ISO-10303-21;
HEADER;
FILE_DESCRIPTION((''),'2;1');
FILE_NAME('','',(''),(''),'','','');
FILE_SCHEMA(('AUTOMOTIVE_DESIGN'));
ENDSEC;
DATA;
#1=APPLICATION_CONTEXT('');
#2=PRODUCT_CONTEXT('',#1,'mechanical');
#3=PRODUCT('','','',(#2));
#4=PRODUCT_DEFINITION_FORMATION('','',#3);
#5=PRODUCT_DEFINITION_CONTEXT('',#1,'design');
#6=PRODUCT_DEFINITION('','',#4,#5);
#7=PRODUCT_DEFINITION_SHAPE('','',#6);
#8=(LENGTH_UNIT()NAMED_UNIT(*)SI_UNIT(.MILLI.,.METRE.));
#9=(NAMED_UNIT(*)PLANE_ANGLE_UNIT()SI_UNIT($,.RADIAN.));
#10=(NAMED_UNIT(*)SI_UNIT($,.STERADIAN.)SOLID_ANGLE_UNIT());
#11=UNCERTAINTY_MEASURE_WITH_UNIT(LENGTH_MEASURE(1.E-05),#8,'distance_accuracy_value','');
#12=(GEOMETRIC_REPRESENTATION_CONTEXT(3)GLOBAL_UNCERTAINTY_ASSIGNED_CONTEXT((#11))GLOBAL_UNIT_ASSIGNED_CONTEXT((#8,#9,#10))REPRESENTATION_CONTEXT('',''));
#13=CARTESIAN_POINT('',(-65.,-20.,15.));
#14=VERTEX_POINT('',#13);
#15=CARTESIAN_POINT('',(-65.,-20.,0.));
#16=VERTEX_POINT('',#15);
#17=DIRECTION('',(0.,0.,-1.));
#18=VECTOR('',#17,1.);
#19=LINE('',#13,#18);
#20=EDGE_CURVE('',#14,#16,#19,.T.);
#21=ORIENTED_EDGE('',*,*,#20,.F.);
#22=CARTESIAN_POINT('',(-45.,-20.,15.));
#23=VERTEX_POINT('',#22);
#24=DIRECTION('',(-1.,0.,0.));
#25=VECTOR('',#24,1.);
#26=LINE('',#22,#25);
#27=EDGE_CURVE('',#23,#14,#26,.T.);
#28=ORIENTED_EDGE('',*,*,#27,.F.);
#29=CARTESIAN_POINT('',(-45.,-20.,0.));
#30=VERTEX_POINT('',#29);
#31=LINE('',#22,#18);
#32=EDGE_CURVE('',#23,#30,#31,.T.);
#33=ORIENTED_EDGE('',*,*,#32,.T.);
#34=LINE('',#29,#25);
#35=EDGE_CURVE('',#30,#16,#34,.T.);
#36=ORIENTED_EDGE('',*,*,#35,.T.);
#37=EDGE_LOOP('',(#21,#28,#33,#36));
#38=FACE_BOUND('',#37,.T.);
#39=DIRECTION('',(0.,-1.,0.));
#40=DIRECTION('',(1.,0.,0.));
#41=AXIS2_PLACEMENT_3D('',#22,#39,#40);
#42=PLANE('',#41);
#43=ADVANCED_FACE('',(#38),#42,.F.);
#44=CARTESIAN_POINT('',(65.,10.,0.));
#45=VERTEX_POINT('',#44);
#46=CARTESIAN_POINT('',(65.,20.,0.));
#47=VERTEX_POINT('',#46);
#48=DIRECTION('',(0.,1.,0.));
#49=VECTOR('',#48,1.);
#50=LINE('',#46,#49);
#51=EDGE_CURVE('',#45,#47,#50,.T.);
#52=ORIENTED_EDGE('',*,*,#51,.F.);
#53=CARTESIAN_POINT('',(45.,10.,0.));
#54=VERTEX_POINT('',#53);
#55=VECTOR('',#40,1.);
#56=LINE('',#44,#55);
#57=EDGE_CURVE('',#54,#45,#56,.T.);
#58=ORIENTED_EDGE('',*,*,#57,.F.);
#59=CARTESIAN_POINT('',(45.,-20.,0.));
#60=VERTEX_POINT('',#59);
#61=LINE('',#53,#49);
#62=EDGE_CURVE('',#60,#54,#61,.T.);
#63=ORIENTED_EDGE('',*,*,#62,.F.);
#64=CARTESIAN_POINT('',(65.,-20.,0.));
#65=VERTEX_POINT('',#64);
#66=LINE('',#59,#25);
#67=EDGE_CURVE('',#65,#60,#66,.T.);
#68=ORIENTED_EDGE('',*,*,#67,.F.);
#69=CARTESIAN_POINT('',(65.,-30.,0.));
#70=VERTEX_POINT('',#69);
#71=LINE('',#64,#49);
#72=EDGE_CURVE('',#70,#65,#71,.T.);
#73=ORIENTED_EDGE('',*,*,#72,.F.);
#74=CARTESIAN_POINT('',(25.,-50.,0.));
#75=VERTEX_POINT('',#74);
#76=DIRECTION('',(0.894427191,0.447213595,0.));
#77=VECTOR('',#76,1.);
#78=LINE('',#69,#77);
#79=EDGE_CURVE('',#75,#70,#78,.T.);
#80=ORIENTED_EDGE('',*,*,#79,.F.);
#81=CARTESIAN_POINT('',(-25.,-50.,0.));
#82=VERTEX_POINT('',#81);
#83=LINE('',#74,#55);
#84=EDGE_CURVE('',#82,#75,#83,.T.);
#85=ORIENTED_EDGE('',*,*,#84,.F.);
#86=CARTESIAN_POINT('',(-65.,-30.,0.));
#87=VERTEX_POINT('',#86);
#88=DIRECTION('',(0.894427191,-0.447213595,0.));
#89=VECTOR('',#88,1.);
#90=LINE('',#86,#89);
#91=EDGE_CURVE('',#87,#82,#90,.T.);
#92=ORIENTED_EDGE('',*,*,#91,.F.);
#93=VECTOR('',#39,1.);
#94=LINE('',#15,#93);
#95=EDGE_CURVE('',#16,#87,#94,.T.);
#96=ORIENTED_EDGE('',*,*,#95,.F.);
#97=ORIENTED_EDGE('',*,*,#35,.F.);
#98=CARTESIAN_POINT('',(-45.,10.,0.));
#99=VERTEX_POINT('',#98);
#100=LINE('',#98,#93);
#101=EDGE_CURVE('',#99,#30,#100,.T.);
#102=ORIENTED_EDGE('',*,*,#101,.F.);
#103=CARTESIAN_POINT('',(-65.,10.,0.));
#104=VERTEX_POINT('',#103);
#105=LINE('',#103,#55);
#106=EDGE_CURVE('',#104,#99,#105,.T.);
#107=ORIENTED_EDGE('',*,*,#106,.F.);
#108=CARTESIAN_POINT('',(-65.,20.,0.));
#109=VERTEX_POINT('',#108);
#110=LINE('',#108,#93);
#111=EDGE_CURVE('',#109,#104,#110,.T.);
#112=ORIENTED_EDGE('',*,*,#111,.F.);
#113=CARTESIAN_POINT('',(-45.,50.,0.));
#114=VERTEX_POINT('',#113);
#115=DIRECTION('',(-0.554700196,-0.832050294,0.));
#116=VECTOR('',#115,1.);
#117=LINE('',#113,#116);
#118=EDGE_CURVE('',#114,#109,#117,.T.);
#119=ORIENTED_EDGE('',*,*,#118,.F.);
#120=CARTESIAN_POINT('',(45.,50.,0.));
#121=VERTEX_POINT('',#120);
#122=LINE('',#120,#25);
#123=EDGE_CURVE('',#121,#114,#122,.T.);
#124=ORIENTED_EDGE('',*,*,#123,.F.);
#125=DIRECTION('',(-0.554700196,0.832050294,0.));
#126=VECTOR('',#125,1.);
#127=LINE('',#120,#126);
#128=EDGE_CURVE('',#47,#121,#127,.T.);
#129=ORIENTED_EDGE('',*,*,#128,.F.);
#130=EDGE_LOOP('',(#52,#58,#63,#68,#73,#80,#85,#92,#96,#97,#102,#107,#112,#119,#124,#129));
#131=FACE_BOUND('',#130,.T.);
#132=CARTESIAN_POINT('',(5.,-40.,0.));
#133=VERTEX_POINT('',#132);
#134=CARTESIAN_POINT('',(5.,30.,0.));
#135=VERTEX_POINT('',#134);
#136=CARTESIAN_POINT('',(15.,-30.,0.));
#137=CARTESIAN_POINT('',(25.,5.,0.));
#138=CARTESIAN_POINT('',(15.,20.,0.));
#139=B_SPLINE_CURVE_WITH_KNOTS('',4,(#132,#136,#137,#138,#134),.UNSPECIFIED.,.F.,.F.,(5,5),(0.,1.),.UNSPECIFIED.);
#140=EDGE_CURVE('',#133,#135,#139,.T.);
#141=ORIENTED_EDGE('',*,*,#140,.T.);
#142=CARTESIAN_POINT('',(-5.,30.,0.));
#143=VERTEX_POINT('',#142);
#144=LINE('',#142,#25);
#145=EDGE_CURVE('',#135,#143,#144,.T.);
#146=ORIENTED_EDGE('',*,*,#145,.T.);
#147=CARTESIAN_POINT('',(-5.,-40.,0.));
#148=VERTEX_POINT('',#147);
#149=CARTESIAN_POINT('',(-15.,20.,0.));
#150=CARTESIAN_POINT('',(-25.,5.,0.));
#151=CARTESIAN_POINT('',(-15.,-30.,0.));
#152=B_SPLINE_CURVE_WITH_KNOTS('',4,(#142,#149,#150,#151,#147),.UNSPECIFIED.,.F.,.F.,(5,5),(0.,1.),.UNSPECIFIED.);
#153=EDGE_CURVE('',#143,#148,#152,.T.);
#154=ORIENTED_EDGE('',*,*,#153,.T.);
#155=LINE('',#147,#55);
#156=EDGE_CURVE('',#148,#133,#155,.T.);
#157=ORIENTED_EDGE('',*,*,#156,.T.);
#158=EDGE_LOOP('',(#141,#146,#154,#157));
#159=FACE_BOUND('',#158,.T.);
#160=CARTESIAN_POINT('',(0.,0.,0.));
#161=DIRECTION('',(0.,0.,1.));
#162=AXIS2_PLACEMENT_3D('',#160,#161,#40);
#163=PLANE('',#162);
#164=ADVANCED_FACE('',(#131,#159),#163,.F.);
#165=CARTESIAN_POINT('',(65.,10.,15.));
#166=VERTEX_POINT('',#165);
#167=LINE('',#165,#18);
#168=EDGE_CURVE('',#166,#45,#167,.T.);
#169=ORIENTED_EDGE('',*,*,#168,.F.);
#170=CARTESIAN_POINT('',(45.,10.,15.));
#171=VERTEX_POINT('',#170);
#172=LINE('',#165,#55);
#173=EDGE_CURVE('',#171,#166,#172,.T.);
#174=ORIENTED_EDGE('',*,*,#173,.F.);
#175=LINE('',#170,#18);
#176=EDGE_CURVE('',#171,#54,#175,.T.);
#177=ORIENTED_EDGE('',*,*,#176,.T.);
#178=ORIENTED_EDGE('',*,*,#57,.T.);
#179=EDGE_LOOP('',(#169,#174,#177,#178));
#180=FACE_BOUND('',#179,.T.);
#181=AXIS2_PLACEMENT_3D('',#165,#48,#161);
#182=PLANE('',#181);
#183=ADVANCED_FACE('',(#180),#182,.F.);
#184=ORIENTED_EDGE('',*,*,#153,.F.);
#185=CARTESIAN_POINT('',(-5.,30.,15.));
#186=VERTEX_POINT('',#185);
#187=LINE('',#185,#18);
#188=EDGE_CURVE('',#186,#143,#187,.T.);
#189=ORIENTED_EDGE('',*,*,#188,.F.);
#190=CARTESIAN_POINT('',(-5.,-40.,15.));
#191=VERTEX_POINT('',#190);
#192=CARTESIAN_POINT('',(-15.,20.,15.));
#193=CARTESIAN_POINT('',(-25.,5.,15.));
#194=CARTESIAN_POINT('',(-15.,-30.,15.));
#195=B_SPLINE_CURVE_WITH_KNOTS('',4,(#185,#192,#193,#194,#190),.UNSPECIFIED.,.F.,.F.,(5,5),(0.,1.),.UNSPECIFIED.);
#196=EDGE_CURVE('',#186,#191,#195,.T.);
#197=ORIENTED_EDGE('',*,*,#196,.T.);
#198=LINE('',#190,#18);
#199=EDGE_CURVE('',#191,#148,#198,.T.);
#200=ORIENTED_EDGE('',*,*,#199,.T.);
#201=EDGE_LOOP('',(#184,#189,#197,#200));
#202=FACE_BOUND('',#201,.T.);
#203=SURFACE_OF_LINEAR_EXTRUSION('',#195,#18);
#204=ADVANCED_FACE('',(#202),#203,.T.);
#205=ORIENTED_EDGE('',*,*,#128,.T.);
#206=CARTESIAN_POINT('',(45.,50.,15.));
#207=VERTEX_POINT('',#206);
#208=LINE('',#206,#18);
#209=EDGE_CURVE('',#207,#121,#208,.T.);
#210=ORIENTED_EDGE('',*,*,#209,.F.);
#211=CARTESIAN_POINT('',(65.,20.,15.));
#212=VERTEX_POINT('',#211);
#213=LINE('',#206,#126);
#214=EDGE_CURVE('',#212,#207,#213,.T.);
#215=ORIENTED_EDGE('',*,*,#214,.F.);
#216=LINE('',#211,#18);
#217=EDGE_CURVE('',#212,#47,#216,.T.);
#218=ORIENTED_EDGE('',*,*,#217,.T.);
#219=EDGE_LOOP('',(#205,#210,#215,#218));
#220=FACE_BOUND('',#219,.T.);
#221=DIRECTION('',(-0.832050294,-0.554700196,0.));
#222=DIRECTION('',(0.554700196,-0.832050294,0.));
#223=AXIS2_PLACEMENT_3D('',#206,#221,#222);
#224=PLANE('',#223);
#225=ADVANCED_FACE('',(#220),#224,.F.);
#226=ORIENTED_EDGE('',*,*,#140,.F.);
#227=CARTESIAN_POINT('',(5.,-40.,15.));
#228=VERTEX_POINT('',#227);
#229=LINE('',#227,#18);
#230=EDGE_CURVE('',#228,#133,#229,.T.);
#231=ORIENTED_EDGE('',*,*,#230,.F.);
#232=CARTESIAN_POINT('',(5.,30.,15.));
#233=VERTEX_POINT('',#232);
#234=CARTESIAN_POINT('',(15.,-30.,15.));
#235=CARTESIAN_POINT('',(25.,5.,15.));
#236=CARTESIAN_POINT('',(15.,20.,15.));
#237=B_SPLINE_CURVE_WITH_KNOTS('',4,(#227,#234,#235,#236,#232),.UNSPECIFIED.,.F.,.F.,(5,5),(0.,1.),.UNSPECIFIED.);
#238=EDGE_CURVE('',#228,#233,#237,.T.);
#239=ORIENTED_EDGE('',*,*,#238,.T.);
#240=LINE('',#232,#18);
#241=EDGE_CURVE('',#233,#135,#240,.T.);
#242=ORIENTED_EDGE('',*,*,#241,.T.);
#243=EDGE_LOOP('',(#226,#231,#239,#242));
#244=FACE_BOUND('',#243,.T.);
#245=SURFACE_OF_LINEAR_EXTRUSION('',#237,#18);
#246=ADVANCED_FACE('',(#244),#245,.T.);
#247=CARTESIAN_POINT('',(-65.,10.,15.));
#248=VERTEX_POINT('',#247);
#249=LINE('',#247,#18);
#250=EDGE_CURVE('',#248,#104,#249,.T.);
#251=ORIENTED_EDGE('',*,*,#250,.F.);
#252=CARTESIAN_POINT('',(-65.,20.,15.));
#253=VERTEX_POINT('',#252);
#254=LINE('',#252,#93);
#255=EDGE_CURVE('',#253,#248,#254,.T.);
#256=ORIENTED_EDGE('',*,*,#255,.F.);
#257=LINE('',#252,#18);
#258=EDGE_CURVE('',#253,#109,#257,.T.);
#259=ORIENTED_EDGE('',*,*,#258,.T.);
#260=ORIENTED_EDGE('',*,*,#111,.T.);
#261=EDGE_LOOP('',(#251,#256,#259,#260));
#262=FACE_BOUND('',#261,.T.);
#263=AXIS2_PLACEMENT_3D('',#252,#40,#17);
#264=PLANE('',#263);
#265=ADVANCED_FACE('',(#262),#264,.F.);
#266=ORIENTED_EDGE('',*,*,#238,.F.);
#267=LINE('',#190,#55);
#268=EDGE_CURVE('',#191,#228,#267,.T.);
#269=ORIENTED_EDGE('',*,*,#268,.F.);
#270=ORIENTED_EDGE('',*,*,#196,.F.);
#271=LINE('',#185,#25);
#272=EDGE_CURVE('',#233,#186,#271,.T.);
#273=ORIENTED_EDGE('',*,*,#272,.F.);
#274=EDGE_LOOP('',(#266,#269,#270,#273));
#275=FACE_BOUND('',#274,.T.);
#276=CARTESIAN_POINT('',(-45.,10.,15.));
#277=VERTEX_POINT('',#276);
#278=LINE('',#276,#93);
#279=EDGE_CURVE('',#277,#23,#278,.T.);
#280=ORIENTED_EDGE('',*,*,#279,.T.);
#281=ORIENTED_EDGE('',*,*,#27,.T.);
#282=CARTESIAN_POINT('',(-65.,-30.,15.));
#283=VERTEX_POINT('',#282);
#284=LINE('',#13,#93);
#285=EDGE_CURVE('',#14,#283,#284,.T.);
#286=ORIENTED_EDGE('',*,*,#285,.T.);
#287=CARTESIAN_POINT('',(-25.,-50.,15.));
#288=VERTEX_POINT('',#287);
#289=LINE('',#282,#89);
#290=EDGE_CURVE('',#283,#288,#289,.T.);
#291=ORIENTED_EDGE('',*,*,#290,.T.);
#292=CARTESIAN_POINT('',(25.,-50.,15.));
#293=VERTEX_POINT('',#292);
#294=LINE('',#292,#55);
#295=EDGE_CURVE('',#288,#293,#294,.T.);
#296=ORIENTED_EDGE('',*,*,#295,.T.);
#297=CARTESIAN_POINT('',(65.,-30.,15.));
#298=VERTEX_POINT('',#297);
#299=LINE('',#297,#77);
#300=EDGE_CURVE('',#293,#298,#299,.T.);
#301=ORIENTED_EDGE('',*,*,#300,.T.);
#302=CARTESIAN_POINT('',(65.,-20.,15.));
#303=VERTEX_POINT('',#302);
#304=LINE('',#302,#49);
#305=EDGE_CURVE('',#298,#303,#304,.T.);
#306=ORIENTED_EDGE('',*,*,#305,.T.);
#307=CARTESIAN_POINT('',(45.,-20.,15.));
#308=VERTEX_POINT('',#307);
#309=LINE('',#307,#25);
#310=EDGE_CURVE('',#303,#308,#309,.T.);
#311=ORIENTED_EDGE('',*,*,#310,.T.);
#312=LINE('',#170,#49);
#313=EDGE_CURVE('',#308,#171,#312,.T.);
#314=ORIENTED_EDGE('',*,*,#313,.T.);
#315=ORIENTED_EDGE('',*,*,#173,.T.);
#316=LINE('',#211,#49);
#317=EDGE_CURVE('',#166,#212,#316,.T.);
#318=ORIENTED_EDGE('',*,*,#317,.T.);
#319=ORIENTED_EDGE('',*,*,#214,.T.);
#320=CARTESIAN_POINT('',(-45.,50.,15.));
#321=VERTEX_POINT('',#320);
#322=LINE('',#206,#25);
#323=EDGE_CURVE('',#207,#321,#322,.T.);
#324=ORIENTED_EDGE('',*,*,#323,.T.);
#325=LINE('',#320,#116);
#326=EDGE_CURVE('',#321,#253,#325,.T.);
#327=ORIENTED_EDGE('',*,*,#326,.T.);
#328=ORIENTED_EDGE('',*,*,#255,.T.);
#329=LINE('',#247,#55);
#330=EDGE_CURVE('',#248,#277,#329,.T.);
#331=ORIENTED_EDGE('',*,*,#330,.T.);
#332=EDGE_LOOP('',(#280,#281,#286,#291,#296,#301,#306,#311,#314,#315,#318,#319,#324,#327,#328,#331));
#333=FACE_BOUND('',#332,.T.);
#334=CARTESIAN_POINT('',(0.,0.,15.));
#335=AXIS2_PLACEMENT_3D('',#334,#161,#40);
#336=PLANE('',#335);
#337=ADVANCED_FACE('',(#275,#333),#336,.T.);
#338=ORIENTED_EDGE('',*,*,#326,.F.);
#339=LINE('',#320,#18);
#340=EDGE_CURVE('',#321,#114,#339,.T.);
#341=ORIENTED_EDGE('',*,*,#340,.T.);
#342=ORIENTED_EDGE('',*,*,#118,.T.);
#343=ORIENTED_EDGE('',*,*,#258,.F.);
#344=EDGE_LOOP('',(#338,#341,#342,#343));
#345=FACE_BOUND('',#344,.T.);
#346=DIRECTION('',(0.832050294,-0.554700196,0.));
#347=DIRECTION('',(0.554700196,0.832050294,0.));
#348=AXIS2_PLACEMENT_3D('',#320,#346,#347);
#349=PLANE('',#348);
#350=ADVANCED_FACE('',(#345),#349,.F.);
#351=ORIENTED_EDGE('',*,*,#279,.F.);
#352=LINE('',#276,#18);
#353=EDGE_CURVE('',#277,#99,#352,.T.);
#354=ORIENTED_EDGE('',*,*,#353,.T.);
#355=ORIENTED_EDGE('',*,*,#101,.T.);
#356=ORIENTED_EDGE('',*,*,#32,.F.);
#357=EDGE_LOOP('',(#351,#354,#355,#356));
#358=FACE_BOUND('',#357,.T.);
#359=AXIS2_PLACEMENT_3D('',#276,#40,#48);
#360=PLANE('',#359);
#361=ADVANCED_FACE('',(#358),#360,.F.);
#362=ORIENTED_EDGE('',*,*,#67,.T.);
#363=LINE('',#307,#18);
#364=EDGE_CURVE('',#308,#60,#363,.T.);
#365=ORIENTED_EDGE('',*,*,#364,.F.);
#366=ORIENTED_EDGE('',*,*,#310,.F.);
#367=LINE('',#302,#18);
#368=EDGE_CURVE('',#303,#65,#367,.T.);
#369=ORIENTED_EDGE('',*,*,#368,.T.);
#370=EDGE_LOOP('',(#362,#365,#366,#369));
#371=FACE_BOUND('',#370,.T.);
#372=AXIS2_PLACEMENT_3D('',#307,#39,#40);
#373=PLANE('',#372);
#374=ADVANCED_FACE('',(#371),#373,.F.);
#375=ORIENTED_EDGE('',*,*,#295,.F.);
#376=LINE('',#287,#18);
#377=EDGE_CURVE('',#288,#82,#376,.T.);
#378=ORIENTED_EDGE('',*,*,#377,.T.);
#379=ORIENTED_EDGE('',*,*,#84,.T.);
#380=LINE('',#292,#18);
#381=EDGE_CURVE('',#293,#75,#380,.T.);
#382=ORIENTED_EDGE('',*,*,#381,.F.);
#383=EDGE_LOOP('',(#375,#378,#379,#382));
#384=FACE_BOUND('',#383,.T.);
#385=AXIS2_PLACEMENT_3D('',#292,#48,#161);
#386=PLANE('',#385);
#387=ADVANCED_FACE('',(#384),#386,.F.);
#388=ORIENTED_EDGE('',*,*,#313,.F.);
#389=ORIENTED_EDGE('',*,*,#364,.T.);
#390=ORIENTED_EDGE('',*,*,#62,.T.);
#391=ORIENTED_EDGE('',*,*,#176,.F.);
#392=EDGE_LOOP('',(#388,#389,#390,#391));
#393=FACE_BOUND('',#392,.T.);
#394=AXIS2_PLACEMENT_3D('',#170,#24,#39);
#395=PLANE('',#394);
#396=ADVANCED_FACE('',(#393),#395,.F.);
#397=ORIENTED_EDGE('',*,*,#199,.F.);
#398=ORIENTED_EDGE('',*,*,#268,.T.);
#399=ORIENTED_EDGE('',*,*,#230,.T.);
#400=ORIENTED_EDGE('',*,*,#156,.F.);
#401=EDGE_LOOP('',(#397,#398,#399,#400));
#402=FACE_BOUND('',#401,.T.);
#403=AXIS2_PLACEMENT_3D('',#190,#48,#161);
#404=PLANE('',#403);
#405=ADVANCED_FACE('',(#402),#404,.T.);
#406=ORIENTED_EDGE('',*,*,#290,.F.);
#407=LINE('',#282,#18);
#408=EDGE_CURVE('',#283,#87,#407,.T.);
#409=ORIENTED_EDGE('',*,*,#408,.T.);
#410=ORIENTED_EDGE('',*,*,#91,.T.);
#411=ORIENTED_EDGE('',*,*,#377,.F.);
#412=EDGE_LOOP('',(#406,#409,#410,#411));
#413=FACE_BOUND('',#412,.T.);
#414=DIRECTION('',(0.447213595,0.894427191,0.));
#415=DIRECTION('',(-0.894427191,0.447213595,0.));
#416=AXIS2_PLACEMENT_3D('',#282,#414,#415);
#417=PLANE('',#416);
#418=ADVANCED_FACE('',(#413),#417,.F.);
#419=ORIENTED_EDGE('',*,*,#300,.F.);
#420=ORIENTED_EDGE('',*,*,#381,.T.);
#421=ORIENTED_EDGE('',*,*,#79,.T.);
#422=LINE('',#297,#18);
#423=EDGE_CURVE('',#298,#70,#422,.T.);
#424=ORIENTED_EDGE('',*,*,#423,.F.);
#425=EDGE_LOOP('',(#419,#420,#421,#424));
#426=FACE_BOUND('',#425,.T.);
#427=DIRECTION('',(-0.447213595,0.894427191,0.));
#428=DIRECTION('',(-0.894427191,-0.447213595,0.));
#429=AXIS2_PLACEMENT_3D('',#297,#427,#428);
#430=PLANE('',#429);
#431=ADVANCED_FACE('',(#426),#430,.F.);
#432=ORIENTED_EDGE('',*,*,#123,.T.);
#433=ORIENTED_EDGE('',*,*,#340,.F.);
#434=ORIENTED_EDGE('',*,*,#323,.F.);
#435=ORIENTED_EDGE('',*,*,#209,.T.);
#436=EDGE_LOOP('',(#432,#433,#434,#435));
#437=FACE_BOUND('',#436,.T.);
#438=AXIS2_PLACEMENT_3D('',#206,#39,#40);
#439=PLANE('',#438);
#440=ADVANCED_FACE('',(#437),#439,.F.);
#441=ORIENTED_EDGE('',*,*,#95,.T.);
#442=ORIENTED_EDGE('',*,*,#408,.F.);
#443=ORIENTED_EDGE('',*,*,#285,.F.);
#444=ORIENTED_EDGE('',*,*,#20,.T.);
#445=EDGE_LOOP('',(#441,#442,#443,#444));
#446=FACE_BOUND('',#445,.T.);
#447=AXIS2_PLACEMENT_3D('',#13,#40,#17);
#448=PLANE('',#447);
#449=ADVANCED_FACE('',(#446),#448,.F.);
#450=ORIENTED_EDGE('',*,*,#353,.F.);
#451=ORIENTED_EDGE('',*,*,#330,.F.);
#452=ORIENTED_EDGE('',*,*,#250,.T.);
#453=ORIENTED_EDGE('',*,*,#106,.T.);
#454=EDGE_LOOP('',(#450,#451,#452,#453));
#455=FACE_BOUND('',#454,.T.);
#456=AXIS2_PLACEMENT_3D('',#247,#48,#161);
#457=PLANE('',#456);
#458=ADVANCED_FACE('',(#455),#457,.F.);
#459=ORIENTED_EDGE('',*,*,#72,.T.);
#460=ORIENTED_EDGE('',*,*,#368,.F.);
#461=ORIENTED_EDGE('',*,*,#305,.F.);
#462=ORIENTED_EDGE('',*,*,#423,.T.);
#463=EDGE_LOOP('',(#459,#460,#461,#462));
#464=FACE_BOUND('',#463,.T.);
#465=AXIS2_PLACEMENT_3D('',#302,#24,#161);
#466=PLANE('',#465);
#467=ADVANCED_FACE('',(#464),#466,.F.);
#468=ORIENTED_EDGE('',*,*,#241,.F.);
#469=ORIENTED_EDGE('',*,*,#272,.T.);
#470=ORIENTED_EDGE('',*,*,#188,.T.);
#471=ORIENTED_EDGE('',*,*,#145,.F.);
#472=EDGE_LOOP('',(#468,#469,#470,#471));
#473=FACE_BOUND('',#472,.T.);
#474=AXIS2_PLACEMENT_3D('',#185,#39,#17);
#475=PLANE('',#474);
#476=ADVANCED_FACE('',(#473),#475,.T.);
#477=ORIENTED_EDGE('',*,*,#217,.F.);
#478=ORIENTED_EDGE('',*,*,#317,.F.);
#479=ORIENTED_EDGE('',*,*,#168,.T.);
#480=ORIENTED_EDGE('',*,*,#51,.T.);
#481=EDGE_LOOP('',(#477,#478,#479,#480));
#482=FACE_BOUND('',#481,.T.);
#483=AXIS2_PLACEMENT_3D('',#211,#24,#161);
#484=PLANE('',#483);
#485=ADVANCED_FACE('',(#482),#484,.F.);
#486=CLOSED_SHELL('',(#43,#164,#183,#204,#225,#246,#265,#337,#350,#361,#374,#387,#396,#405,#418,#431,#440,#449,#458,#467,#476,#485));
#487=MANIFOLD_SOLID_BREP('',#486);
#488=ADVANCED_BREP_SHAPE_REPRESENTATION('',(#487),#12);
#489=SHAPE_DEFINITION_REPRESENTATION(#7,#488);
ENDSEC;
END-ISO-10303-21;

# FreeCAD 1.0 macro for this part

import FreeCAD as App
import Part
import Sketcher
from FreeCAD import Vector
Q = App.Units.Quantity


def add_polygon(sketch, points):
    """Adds a closed chain of lines whose ends are joined by coincident constraints."""
    first, n = sketch.GeometryCount, len(points)
    for a, b in zip(points, points[1:] + points[:1]):
        sketch.addGeometry(Part.LineSegment(App.Vector(*a, 0), App.Vector(*b, 0)), False)
    for i in range(n):
        sketch.addConstraint(Sketcher.Constraint("Coincident", first + i, 2, first + (i + 1) % n, 1))

doc = App.newDocument("Part")
body = doc.addObject("PartDesign::Body", "Body")

# Sketch on XY plane
sketch1 = doc.addObject("Sketcher::SketchObject", "Sketch")
body.addObject(sketch1)
sketch1.AttachmentSupport = (doc.XY_Plane, [""])
sketch1.MapMode = "FlatFace"
add_polygon(sketch1, [(45, 50), (-45, 50), (-65, 20), (-65, 10), (-45, 10), (-45, -20), (-65, -20), (-65, -30), (-25, -50), (25, -50), (65, -30), (65, -20), (45, -20), (45, 10), (65, 10), (65, 20)])  # lines 0-15
sketch1.addGeometry(Part.BSplineCurve([Vector(-5, 30, 0), Vector(-15, 20, 0), Vector(-25, 5, 0), Vector(-15, -30, 0), Vector(-5, -40, 0)], [5, 5], [0, 1], False, 4, [1, 1, 1, 1, 1], False), False)  # 16
sketch1.addGeometry(Part.LineSegment(Vector(-5, 30, 0), Vector(5, 30, 0)), False)  # 17
sketch1.addGeometry(Part.BSplineCurve([Vector(5, 30, 0), Vector(15, 20, 0), Vector(25, 5, 0), Vector(15, -30, 0), Vector(5, -40, 0)], [5, 5], [0, 1], False, 4, [1, 1, 1, 1, 1], False), False)  # 18
sketch1.addGeometry(Part.LineSegment(Vector(5, -40, 0), Vector(-5, -40, 0)), False)  # 19
sketch1.addConstraint([
    Sketcher.Constraint("Block", 16),
    Sketcher.Constraint("Block", 18),
    Sketcher.Constraint("Coincident", 16, 1, 17, 1),
    Sketcher.Constraint("Coincident", 17, 2, 18, 1),
    Sketcher.Constraint("Coincident", 18, 2, 19, 1),
    Sketcher.Constraint("Coincident", 19, 2, 16, 2),
    Sketcher.Constraint("Horizontal", 0),
    Sketcher.Constraint("Vertical", 2),
    Sketcher.Constraint("Horizontal", 3),
    Sketcher.Constraint("Vertical", 4),
    Sketcher.Constraint("Horizontal", 5),
    Sketcher.Constraint("Vertical", 6),
    Sketcher.Constraint("Horizontal", 8),
    Sketcher.Constraint("Vertical", 10),
    Sketcher.Constraint("Horizontal", 11),
    Sketcher.Constraint("Vertical", 12),
    Sketcher.Constraint("Horizontal", 13),
    Sketcher.Constraint("Vertical", 14),
    Sketcher.Constraint("DistanceX", 0, 2, 0, 1, Q("90 mm")),
    Sketcher.Constraint("DistanceX", 3, 1, 3, 2, Q("20 mm")),
    Sketcher.Constraint("DistanceX", 5, 2, 5, 1, Q("20 mm")),
    Sketcher.Constraint("DistanceX", 8, 1, 8, 2, Q("50 mm")),
    Sketcher.Constraint("DistanceX", 11, 2, 11, 1, Q("20 mm")),
    Sketcher.Constraint("DistanceX", 13, 1, 13, 2, Q("20 mm")),
    Sketcher.Constraint("DistanceY", 2, 2, 2, 1, Q("10 mm")),
    Sketcher.Constraint("DistanceY", 4, 2, 4, 1, Q("30 mm")),
    Sketcher.Constraint("DistanceY", 6, 2, 6, 1, Q("10 mm")),
    Sketcher.Constraint("DistanceY", 10, 1, 10, 2, Q("10 mm")),
    Sketcher.Constraint("DistanceY", 12, 1, 12, 2, Q("30 mm")),
    Sketcher.Constraint("DistanceY", 14, 1, 14, 2, Q("10 mm")),
    Sketcher.Constraint("DistanceX", 0, 2, -1, 1, Q("45 mm")),
    Sketcher.Constraint("DistanceY", -1, 1, 0, 2, Q("50 mm")),
    Sketcher.Constraint("DistanceX", 1, 2, -1, 1, Q("65 mm")),
    Sketcher.Constraint("DistanceY", -1, 1, 1, 2, Q("20 mm")),
    Sketcher.Constraint("DistanceX", 7, 2, -1, 1, Q("25 mm")),
    Sketcher.Constraint("DistanceY", 7, 2, -1, 1, Q("50 mm")),
    Sketcher.Constraint("DistanceX", -1, 1, 9, 2, Q("65 mm")),
    Sketcher.Constraint("DistanceY", 9, 2, -1, 1, Q("30 mm")),
])
pad1 = doc.addObject("PartDesign::Pad", "Pad")
body.addObject(pad1)
pad1.Profile = sketch1
pad1.Length = 15

doc.recompute()
